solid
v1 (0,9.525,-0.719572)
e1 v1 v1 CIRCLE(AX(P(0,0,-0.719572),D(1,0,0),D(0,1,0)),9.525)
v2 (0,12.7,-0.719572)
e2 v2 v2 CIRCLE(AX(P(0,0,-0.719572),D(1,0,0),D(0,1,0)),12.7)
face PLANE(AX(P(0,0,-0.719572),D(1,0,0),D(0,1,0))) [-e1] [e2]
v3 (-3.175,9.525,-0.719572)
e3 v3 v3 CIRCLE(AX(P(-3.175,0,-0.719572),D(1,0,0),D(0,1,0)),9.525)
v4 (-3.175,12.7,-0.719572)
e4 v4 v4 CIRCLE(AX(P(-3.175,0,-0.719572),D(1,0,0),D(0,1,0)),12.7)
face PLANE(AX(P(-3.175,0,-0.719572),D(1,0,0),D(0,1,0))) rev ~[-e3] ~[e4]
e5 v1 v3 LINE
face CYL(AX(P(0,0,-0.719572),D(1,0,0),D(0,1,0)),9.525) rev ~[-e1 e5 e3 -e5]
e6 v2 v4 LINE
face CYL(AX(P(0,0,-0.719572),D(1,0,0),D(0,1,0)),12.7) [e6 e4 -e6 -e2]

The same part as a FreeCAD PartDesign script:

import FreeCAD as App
import Part
import Sketcher
from FreeCAD import Vector
Q = App.Units.Quantity

doc = App.newDocument("Part")
body = doc.addObject("PartDesign::Body", "Body")

sketch1 = doc.addObject("Sketcher::SketchObject", "Sketch")
body.addObject(sketch1)
sketch1.AttachmentSupport = (doc.YZ_Plane, [""])
sketch1.MapMode = "FlatFace"
sketch1.addGeometry([
    Part.Circle(Vector(0, -1, 0), Vector(0, 0, 1), 13),
    Part.Circle(Vector(0, -1, 0), Vector(0, 0, 1), 10),
], False)
sketch1.addConstraint([
    Sketcher.Constraint("Coincident", 1, 3, 0, 3),
    Sketcher.Constraint("PointOnObject", 0, 3, -2),
    Sketcher.Constraint("Diameter", 0, Q("1 in")),
    Sketcher.Constraint("Diameter", 1, Q("0.75 in")),
    Sketcher.Constraint("DistanceY", 0, 3, -1, 1, Q("0.719572 mm")),
])
pad1 = doc.addObject("PartDesign::Pad", "Pad")
body.addObject(pad1)
pad1.Profile = sketch1
pad1.Length = Q("0.125 in")
pad1.Reversed = True

doc.recompute()
